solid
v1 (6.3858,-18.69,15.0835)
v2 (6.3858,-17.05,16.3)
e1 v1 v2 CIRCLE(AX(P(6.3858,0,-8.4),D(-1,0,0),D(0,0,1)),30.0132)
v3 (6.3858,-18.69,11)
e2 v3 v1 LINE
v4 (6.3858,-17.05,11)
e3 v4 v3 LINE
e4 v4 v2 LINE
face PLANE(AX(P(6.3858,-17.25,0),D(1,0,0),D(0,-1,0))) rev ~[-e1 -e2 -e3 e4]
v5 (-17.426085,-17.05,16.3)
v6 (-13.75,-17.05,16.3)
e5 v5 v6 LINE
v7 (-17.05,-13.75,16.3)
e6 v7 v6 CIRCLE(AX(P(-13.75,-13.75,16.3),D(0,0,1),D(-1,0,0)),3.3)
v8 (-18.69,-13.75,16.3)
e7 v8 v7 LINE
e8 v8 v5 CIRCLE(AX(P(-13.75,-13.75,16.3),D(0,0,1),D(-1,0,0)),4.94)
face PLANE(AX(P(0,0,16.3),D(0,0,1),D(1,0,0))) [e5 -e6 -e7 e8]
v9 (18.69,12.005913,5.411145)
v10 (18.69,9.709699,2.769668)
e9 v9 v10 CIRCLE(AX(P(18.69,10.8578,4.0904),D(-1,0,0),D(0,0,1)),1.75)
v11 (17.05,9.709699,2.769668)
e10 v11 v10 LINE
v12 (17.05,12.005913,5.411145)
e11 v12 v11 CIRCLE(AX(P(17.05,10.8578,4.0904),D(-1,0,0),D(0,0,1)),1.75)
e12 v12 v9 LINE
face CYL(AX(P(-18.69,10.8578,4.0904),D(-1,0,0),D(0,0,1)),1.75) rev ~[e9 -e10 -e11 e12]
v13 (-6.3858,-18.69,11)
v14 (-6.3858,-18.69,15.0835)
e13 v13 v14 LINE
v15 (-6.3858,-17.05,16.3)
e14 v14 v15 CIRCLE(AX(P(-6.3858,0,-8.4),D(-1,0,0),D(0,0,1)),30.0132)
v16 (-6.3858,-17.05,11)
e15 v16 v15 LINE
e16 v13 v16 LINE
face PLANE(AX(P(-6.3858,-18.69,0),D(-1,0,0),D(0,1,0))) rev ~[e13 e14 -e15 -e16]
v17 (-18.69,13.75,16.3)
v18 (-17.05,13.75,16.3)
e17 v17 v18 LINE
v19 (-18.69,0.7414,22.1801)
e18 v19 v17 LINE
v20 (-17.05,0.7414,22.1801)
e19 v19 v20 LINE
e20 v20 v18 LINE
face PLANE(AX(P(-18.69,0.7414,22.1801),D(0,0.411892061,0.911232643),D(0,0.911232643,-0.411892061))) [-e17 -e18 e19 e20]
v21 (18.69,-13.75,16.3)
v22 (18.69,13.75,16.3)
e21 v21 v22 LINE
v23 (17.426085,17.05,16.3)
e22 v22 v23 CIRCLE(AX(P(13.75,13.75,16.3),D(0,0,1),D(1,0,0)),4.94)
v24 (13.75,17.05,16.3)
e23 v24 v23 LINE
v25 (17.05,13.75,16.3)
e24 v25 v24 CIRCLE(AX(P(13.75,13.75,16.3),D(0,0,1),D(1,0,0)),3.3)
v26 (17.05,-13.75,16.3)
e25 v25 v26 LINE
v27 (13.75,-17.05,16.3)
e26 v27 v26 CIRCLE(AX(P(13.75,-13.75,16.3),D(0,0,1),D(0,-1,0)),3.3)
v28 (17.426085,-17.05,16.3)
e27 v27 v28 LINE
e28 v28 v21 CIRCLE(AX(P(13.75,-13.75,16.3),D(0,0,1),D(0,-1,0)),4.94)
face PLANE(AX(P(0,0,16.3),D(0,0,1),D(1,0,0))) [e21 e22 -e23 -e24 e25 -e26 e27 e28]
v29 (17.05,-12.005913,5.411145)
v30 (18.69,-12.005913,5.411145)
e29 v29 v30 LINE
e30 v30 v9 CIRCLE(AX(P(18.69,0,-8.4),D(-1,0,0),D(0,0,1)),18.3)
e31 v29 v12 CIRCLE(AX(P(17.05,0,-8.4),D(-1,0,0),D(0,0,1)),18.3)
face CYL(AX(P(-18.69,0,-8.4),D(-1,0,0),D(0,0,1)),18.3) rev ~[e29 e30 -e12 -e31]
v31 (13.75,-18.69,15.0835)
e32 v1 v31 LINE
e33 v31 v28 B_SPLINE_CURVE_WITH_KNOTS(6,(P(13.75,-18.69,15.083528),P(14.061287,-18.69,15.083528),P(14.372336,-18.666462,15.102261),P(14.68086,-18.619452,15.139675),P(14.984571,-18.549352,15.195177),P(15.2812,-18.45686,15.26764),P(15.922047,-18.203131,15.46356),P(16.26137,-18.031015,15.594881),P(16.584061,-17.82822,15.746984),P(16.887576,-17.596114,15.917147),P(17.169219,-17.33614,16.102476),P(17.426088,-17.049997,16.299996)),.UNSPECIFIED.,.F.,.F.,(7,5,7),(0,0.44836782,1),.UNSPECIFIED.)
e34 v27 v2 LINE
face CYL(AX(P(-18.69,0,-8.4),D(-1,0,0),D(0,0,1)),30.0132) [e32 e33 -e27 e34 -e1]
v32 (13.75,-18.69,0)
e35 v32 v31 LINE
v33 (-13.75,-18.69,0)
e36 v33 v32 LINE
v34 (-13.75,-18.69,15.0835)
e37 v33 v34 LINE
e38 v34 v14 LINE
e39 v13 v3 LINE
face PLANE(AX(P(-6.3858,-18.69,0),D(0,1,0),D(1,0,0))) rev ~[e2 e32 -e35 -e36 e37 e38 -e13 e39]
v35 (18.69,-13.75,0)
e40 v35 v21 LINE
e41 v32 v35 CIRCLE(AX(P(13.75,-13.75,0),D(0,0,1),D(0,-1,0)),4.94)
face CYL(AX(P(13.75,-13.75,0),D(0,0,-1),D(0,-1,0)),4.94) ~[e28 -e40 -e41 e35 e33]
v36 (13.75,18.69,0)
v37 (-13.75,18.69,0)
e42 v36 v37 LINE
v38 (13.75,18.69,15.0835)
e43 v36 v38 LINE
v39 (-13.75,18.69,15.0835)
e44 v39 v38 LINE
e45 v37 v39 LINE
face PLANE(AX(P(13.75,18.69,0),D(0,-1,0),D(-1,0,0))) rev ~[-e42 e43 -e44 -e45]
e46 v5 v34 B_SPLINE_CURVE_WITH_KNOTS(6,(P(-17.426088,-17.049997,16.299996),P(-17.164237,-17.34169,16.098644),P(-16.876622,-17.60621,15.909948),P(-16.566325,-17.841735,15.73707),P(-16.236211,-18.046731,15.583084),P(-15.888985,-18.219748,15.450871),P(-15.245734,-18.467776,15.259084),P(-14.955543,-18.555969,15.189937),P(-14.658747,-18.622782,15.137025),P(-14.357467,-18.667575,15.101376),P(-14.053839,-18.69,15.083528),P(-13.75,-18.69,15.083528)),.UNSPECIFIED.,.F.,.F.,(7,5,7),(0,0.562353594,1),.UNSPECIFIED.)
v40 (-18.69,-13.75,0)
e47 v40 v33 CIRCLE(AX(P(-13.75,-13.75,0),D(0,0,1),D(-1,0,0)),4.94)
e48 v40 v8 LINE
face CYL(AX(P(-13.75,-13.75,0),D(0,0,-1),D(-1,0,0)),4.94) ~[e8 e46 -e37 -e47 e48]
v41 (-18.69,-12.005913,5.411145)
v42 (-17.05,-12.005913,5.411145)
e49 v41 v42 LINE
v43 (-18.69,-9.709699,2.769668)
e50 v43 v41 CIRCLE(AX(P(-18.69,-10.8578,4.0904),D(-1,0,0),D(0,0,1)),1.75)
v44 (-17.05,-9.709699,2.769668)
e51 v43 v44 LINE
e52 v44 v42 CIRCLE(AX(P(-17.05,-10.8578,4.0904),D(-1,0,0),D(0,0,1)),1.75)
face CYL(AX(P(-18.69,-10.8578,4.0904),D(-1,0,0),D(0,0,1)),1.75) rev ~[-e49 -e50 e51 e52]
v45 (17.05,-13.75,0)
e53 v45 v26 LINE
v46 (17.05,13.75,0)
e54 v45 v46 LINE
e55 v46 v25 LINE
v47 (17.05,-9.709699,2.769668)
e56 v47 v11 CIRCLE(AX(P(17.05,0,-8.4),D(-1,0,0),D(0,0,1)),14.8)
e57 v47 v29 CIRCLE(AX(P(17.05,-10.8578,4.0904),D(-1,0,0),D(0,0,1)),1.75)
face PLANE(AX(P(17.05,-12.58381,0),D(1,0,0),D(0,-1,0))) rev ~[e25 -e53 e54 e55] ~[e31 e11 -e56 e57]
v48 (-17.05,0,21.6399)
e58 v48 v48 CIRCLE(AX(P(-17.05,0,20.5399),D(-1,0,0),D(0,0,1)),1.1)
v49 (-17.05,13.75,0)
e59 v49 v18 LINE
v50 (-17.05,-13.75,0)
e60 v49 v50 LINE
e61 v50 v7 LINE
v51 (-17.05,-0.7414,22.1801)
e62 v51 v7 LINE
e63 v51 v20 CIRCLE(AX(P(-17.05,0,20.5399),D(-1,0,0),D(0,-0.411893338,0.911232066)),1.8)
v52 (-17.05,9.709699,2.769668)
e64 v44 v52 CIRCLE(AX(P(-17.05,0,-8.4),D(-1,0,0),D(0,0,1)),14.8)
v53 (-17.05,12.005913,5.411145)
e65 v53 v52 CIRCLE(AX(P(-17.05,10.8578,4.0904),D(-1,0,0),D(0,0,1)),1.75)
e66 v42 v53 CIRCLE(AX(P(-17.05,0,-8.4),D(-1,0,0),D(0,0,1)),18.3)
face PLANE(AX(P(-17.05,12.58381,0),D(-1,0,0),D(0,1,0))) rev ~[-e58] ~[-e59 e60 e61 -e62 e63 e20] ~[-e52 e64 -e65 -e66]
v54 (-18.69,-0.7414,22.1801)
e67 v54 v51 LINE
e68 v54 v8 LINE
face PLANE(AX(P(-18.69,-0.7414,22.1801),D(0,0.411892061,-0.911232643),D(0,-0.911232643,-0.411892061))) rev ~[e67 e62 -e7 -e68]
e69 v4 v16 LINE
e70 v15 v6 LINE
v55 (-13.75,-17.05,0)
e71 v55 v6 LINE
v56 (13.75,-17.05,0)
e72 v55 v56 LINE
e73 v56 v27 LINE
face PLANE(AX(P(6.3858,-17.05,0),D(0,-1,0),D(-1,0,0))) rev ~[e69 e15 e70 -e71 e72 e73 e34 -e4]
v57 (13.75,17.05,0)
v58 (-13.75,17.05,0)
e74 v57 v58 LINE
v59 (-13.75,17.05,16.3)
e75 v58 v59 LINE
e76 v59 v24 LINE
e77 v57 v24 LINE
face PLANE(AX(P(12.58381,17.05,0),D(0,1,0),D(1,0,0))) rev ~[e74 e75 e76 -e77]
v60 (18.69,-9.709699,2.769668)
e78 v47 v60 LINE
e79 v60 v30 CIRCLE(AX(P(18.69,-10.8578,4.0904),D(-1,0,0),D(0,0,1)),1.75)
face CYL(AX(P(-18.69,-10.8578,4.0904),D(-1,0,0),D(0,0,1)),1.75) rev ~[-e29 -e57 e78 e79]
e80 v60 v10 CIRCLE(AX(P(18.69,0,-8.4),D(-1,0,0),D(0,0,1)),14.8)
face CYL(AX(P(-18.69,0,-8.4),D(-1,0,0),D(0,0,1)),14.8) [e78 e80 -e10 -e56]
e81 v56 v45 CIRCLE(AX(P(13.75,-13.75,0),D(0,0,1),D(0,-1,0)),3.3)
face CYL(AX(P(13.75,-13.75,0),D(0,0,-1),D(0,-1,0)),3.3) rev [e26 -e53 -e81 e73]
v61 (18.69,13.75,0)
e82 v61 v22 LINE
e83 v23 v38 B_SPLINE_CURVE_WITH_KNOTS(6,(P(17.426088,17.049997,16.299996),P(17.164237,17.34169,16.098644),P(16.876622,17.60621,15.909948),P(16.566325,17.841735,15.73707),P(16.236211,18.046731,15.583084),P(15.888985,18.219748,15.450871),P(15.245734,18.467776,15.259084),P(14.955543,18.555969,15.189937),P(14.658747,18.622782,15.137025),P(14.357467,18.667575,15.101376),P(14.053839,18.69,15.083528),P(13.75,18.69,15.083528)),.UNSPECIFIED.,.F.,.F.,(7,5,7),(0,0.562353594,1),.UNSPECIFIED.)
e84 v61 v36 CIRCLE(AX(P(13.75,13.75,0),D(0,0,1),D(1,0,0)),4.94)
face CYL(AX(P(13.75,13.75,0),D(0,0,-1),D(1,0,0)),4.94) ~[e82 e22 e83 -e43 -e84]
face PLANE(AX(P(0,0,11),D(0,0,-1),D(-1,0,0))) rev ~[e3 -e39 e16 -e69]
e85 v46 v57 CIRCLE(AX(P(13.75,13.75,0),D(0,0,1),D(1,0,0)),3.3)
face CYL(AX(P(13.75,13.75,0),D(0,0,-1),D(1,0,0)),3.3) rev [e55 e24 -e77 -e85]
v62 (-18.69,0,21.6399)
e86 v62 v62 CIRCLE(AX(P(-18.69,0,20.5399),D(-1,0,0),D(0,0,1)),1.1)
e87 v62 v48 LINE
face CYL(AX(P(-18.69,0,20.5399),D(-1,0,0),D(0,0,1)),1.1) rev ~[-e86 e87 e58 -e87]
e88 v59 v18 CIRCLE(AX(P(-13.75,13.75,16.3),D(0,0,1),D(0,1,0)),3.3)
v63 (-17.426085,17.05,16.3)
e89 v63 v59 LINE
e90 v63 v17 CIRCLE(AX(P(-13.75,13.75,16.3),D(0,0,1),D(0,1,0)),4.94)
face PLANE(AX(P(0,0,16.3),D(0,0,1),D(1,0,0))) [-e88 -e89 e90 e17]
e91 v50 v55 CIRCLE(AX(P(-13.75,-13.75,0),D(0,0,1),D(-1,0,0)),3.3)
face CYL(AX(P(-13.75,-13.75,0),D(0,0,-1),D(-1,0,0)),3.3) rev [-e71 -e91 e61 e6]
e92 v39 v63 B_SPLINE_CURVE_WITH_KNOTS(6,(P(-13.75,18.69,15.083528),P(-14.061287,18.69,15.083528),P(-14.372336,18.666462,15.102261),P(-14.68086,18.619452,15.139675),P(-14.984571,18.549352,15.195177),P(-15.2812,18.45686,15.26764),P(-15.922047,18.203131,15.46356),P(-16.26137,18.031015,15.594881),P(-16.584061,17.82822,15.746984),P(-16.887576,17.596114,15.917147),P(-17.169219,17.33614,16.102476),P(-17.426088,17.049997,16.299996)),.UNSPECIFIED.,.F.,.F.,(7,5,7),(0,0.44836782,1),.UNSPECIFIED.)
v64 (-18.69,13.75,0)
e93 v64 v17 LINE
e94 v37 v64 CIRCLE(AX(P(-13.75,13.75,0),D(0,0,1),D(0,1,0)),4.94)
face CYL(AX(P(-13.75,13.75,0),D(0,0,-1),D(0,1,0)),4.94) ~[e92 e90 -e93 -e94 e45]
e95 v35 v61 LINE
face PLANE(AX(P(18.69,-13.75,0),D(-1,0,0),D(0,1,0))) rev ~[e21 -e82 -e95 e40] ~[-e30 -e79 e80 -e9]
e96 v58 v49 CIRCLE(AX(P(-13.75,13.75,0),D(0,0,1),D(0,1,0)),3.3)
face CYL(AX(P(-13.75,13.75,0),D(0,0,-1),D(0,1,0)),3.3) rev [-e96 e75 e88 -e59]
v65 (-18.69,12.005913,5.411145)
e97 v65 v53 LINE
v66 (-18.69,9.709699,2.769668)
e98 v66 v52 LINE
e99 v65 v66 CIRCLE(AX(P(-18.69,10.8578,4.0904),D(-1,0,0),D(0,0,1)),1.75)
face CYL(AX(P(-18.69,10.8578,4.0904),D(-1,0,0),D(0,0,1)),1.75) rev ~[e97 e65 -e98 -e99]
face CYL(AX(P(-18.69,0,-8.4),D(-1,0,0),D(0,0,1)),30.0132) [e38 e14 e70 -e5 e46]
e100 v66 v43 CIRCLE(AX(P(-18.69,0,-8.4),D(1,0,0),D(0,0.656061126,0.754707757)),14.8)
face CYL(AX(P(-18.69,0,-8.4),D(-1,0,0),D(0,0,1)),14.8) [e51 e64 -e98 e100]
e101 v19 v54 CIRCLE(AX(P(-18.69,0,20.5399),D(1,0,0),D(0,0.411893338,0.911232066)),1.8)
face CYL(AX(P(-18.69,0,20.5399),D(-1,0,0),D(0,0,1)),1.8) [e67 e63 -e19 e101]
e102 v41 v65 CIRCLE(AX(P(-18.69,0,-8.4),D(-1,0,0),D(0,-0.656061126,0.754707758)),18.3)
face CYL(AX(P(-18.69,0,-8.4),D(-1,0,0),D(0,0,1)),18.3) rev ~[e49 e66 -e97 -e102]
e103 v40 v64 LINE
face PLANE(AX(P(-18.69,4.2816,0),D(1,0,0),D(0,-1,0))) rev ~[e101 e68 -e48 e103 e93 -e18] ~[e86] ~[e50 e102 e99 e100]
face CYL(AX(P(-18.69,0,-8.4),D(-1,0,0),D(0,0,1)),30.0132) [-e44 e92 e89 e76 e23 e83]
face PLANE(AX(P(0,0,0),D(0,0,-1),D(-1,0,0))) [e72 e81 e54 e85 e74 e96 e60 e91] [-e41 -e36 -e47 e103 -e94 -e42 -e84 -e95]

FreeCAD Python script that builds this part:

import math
import FreeCAD as App
import Part
import Sketcher

V = App.Vector
Q = App.Units.Quantity

doc = App.newDocument("Part")
body = doc.addObject("PartDesign::Body", "Body")

sketch1 = body.newObject("Sketcher::SketchObject", "Sketch")
sketch1.AttachmentSupport = (doc.getObject("XY_Plane"), [""])
sketch1.MapMode = "FlatFace"
sketch1.addGeometry([
    Part.LineSegment(V(-6.4, -18.7, 0), V(-6.4, -17.1, 0)),
    Part.LineSegment(V(-6.4, -17.1, 0), V(-13.8, -17.1, 0)),
    Part.ArcOfCircle(Part.Circle(V(-13.8, -13.8, 0), V(0, 0, 1), 3.3), math.radians(180), math.radians(270)),
    Part.LineSegment(V(-17.1, -13.8, 0), V(-17.1, 13.8, 0)),
    Part.ArcOfCircle(Part.Circle(V(-13.8, 13.8, 0), V(0, 0, 1), 3.3), math.radians(90), math.radians(180)),
    Part.LineSegment(V(-13.8, 17.1, 0), V(13.8, 17.1, 0)),
    Part.ArcOfCircle(Part.Circle(V(13.8, 13.8, 0), V(0, 0, 1), 3.3), math.radians(0), math.radians(90)),
    Part.LineSegment(V(17.1, 13.8, 0), V(17.1, -13.8, 0)),
    Part.ArcOfCircle(Part.Circle(V(13.8, -13.8, 0), V(0, 0, 1), 3.3), math.radians(-90), math.radians(0)),
    Part.LineSegment(V(13.8, -17.1, 0), V(6.4, -17.1, 0)),
    Part.LineSegment(V(6.4, -17.1, 0), V(6.4, -18.7, 0)),
    Part.LineSegment(V(6.4, -18.7, 0), V(13.8, -18.7, 0)),
    Part.ArcOfCircle(Part.Circle(V(13.8, -13.8, 0), V(0, 0, 1), 4.9), math.radians(-90), math.radians(0)),
    Part.LineSegment(V(18.7, -13.8, 0), V(18.7, 13.8, 0)),
    Part.ArcOfCircle(Part.Circle(V(13.8, 13.8, 0), V(0, 0, 1), 4.9), math.radians(0), math.radians(90)),
    Part.LineSegment(V(13.8, 18.7, 0), V(-13.8, 18.7, 0)),
    Part.ArcOfCircle(Part.Circle(V(-13.8, 13.8, 0), V(0, 0, 1), 4.9), math.radians(90), math.radians(180)),
    Part.LineSegment(V(-18.7, 13.8, 0), V(-18.7, -13.8, 0)),
    Part.ArcOfCircle(Part.Circle(V(-13.8, -13.8, 0), V(0, 0, 1), 4.9), math.radians(180), math.radians(270)),
    Part.LineSegment(V(-13.8, -18.7, 0), V(-6.4, -18.7, 0)),
], False)
sketch1.addConstraint([
    Sketcher.Constraint("Coincident", 0, 2, 1, 1),
    Sketcher.Constraint("Tangent", 1, 2, 2, 2),
    Sketcher.Constraint("Tangent", 2, 1, 3, 1),
    Sketcher.Constraint("Tangent", 3, 2, 4, 2),
    Sketcher.Constraint("Tangent", 4, 1, 5, 1),
    Sketcher.Constraint("Tangent", 5, 2, 6, 2),
    Sketcher.Constraint("Tangent", 6, 1, 7, 1),
    Sketcher.Constraint("Tangent", 7, 2, 8, 2),
    Sketcher.Constraint("Tangent", 8, 1, 9, 1),
    Sketcher.Constraint("Coincident", 9, 2, 10, 1),
    Sketcher.Constraint("Coincident", 10, 2, 11, 1),
    Sketcher.Constraint("Tangent", 11, 2, 12, 1),
    Sketcher.Constraint("Tangent", 12, 2, 13, 1),
    Sketcher.Constraint("Tangent", 13, 2, 14, 1),
    Sketcher.Constraint("Tangent", 14, 2, 15, 1),
    Sketcher.Constraint("Tangent", 15, 2, 16, 1),
    Sketcher.Constraint("Tangent", 16, 2, 17, 1),
    Sketcher.Constraint("Tangent", 17, 2, 18, 1),
    Sketcher.Constraint("Tangent", 18, 2, 19, 1),
    Sketcher.Constraint("Coincident", 19, 2, 0, 1),
    Sketcher.Constraint("Vertical", 0),
    Sketcher.Constraint("Horizontal", 1),
    Sketcher.Constraint("Vertical", 3),
    Sketcher.Constraint("Horizontal", 5),
    Sketcher.Constraint("Vertical", 7),
    Sketcher.Constraint("Horizontal", 9),
    Sketcher.Constraint("Vertical", 10),
    Sketcher.Constraint("Horizontal", 11),
    Sketcher.Constraint("Vertical", 13),
    Sketcher.Constraint("Horizontal", 15),
    Sketcher.Constraint("Vertical", 17),
    Sketcher.Constraint("Horizontal", 19),
    Sketcher.Constraint("Coincident", 12, 3, 8, 3),
    Sketcher.Constraint("Coincident", 14, 3, 6, 3),
    Sketcher.Constraint("Coincident", 16, 3, 4, 3),
    Sketcher.Constraint("Coincident", 18, 3, 2, 3),
    Sketcher.Constraint("Equal", 2, 4),
    Sketcher.Constraint("Equal", 4, 6),
    Sketcher.Constraint("Equal", 6, 8),
    Sketcher.Constraint("Symmetric", 2, 3, 6, 3, -1, 1),
    Sketcher.Constraint("Symmetric", 0, 2, 9, 2, -2),
    Sketcher.Constraint("Equal", 15, 3),
    Sketcher.Constraint("Radius", 2, Q("3.3 mm")),
    Sketcher.Constraint("Radius", 12, Q("4.94 mm")),
    Sketcher.Constraint("DistanceX", 5, 1, 5, 2, Q("27.5 mm")),
    Sketcher.Constraint("DistanceX", 1, 2, 1, 1, Q("7.3642 mm")),
])
pad1 = body.newObject("PartDesign::Pad", "Pad")
pad1.Profile = sketch1
pad1.Length = 16.3

sketch2 = body.newObject("Sketcher::SketchObject", "Sketch001")
sketch2.AttachmentSupport = (doc.getObject("XY_Plane"), [""])
sketch2.MapMode = "FlatFace"
sketch2.addGeometry([
    Part.LineSegment(V(6.4, -18.7, 0), V(-6.4, -18.7, 0)),
    Part.LineSegment(V(-6.4, -18.7, 0), V(-6.4, -17.1, 0)),
    Part.LineSegment(V(-6.4, -17.1, 0), V(6.4, -17.1, 0)),
    Part.LineSegment(V(6.4, -17.1, 0), V(6.4, -18.7, 0)),
], False)
sketch2.addConstraint([
    Sketcher.Constraint("Coincident", 0, 2, 1, 1),
    Sketcher.Constraint("Coincident", 1, 2, 2, 1),
    Sketcher.Constraint("Coincident", 2, 2, 3, 1),
    Sketcher.Constraint("Coincident", 3, 2, 0, 1),
    Sketcher.Constraint("Horizontal", 0),
    Sketcher.Constraint("Vertical", 1),
    Sketcher.Constraint("Horizontal", 2),
    Sketcher.Constraint("Vertical", 3),
    Sketcher.Constraint("DistanceY", 1, 1, 1, 2, Q("1.64 mm")),
    Sketcher.Constraint("DistanceY", 0, 2, -1, 1, Q("18.69 mm")),
    Sketcher.Constraint("DistanceX", 0, 2, 0, 1, Q("12.7716 mm")),
    Sketcher.Constraint("DistanceX", 0, 2, -1, 1, Q("6.3858 mm")),
])
pad2 = body.newObject("PartDesign::Pad", "Pad001")
pad2.Profile = sketch2
pad2.Length = 11

sketch3 = body.newObject("Sketcher::SketchObject", "Sketch002")
sketch3.AttachmentSupport = (doc.getObject("YZ_Plane"), [""])
sketch3.MapMode = "FlatFace"
sketch3.AttachmentOffset = App.Placement(V(0, 0, -18.69), App.Rotation())
sketch3.addGeometry([
    Part.ArcOfCircle(Part.Circle(V(10.9, 4.1, 0), V(0, 0, 1), 1.8), math.radians(-131), math.radians(49)),
    Part.ArcOfCircle(Part.Circle(V(0, -8.4, 0), V(0, 0, 1), 14.8), math.radians(49), math.radians(131)),
    Part.ArcOfCircle(Part.Circle(V(-10.9, 4.1, 0), V(0, 0, 1), 1.8), math.radians(131), math.radians(311)),
    Part.ArcOfCircle(Part.Circle(V(0, -8.4, 0), V(0, 0, 1), 18.3), math.radians(49), math.radians(131)),
], False)
sketch3.addConstraint([
    Sketcher.Constraint("Tangent", 0, 1, 1, 1),
    Sketcher.Constraint("Tangent", 1, 2, 2, 2),
    Sketcher.Constraint("Tangent", 2, 1, 3, 2),
    Sketcher.Constraint("Tangent", 3, 1, 0, 2),
    Sketcher.Constraint("Coincident", 3, 3, 1, 3),
    Sketcher.Constraint("Symmetric", 0, 3, 2, 3, -2),
    Sketcher.Constraint("Radius", 0, Q("1.75 mm")),
    Sketcher.Constraint("Radius", 1, Q("14.8 mm")),
    Sketcher.Constraint("DistanceY", 1, 3, -1, 1, Q("8.4 mm")),
    Sketcher.Constraint("DistanceX", 2, 1, -1, 1, Q("12.006 mm")),
])
pocket1 = body.newObject("PartDesign::Pocket", "Pocket")
pocket1.Profile = sketch3
pocket1.Length = 40
pocket1.Reversed = True

sketch4 = body.newObject("Sketcher::SketchObject", "Sketch003")
sketch4.AttachmentSupport = (doc.getObject("YZ_Plane"), [""])
sketch4.MapMode = "FlatFace"
sketch4.AttachmentOffset = App.Placement(V(0, 0, -18.69), App.Rotation())
sketch4.addGeometry([
    Part.ArcOfCircle(Part.Circle(V(0, 20.5, 0), V(0, 0, 1), 1.8), math.radians(66), math.radians(114)),
    Part.LineSegment(V(0.7, 22.2, 0), V(13.8, 16.3, 0)),
    Part.LineSegment(V(13.8, 16.3, 0), V(-13.8, 16.3, 0)),
    Part.LineSegment(V(-13.8, 16.3, 0), V(-0.7, 22.2, 0)),
    Part.Circle(V(0, 20.5, 0), V(0, 0, 1), 1.1),
], False)
sketch4.addConstraint([
    Sketcher.Constraint("Tangent", 0, 1, 1, 1),
    Sketcher.Constraint("Coincident", 1, 2, 2, 1),
    Sketcher.Constraint("Coincident", 2, 2, 3, 1),
    Sketcher.Constraint("Tangent", 3, 2, 0, 2),
    Sketcher.Constraint("Horizontal", 2),
    Sketcher.Constraint("Coincident", 4, 3, 0, 3),
    Sketcher.Constraint("Symmetric", 0, 1, 3, 2, -2),
    Sketcher.Constraint("Radius", 0, Q("1.8 mm")),
    Sketcher.Constraint("Diameter", 4, Q("2.2 mm")),
    Sketcher.Constraint("DistanceX", 2, 2, 2, 1, Q("27.5 mm")),
    Sketcher.Constraint("DistanceY", -1, 1, 1, 2, Q("16.3 mm")),
    Sketcher.Constraint("DistanceY", -1, 1, 0, 3, Q("20.54 mm")),
])
pad3 = body.newObject("PartDesign::Pad", "Pad002")
pad3.Profile = sketch4
pad3.Length = 1.64

sketch5 = body.newObject("Sketcher::SketchObject", "Sketch004")
sketch5.AttachmentSupport = (doc.getObject("YZ_Plane"), [""])
sketch5.MapMode = "FlatFace"
sketch5.AttachmentOffset = App.Placement(V(0, 0, -18.69), App.Rotation())
sketch5.addGeometry([
    Part.LineSegment(V(17.1, 16.3, 0), V(17.1, 18.7, 0)),
    Part.ArcOfCircle(Part.Circle(V(0, -8.4, 0), V(0, 0, 1), 32), math.radians(54.28), math.radians(57.82)),
    Part.LineSegment(V(18.7, 17.6, 0), V(18.7, 15.1, 0)),
    Part.ArcOfCircle(Part.Circle(V(0, -8.4, 0), V(0, 0, 1), 30), math.radians(51.48), math.radians(55.38)),
    Part.LineSegment(V(-17.1, 18.7, 0), V(-17.1, 16.3, 0)),
    Part.ArcOfCircle(Part.Circle(V(0, -8.4, 0), V(0, 0, 1), 30), math.radians(124.62), math.radians(128.52)),
    Part.LineSegment(V(-18.7, 15.1, 0), V(-18.7, 17.6, 0)),
    Part.ArcOfCircle(Part.Circle(V(0, -8.4, 0), V(0, 0, 1), 32), math.radians(122.18), math.radians(125.72)),
], False)
sketch5.addConstraint([
    Sketcher.Constraint("Coincident", 0, 2, 1, 2),
    Sketcher.Constraint("Coincident", 1, 1, 2, 1),
    Sketcher.Constraint("Coincident", 2, 2, 3, 1),
    Sketcher.Constraint("Coincident", 3, 2, 0, 1),
    Sketcher.Constraint("Coincident", 4, 2, 5, 1),
    Sketcher.Constraint("Coincident", 5, 2, 6, 1),
    Sketcher.Constraint("Coincident", 6, 2, 7, 2),
    Sketcher.Constraint("Coincident", 7, 1, 4, 1),
    Sketcher.Constraint("Vertical", 0),
    Sketcher.Constraint("Vertical", 2),
    Sketcher.Constraint("Vertical", 4),
    Sketcher.Constraint("Vertical", 6),
    Sketcher.Constraint("Coincident", 3, 3, 1, 3),
    Sketcher.Constraint("Coincident", 5, 3, 1, 3),
    Sketcher.Constraint("Coincident", 7, 3, 1, 3),
    Sketcher.Constraint("Equal", 3, 5),
    Sketcher.Constraint("Equal", 1, 7),
    Sketcher.Constraint("Symmetric", 3, 2, 4, 2, -2),
    Sketcher.Constraint("Horizontal", 2, 2, 5, 2),
    Sketcher.Constraint("DistanceY", 1, 3, -1, 1, Q("8.4 mm")),
    Sketcher.Constraint("DistanceY", -1, 1, 3, 2, Q("16.3 mm")),
    Sketcher.Constraint("Radius", 1, Q("32.0132 mm")),
    Sketcher.Constraint("Radius", 3, Q("30.0132 mm")),
    Sketcher.Constraint("DistanceX", -1, 1, 1, 1, Q("18.69 mm")),
])
pocket2 = body.newObject("PartDesign::Pocket", "Pocket001")
pocket2.Profile = sketch5
pocket2.Length = 40
pocket2.Reversed = True

doc.recompute()
